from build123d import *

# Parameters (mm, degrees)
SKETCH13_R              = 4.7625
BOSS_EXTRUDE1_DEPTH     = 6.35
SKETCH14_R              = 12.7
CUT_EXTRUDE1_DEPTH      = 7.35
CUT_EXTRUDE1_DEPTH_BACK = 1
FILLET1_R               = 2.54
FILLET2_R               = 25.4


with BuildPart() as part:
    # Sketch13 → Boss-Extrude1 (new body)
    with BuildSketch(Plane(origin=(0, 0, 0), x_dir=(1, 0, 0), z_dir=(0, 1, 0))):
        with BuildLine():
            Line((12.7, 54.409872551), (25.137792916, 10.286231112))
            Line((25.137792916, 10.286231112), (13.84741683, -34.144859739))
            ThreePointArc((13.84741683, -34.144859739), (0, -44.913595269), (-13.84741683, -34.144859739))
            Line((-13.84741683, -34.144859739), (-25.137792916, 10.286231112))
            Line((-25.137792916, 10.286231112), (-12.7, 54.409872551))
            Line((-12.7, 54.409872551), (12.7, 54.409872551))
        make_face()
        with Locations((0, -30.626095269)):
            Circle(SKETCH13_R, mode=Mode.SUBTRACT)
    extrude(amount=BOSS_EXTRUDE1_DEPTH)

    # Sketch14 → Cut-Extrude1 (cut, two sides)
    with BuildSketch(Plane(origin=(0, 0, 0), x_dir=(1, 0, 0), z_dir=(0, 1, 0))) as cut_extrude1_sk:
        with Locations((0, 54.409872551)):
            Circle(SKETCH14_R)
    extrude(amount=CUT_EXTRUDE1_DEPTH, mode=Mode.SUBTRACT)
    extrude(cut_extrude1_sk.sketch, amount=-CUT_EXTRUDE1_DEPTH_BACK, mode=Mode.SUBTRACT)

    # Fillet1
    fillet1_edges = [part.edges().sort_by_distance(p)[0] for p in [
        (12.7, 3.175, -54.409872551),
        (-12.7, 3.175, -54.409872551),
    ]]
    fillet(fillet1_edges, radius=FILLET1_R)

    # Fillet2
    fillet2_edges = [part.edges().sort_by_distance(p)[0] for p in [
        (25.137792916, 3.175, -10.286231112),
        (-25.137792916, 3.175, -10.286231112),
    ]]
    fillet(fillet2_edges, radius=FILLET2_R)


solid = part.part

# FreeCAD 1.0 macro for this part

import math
import FreeCAD as App
import Part
import Sketcher
Q = App.Units.Quantity


def edges_at(feature, points):
    """Names of the edges that pass closest to the given points."""
    edges = feature.Shape.Edges
    near = lambda p: min(range(len(edges)), key=lambda i: edges[i].distToShape(Part.Vertex(*p))[0])
    return sorted({f"Edge{near(p) + 1}" for p in points})

doc = App.newDocument("Part")
body = doc.addObject("PartDesign::Body", "Body")

# Sketch on XZ plane
sketch1 = body.newObject("Sketcher::SketchObject", "Sketch")
sketch1.AttachmentSupport = (doc.getObject("XZ_Plane"), [""])
sketch1.MapMode = "FlatFace"
sketch1.addGeometry(Part.LineSegment(App.Vector(25.1, -10.3, 0), App.Vector(12.7, -54.4, 0)), False)
sketch1.addGeometry(Part.LineSegment(App.Vector(12.7, -54.4, 0), App.Vector(-12.7, -54.4, 0)), False)
sketch1.addGeometry(Part.LineSegment(App.Vector(-12.7, -54.4, 0), App.Vector(-25.1, -10.3, 0)), False)
sketch1.addGeometry(Part.LineSegment(App.Vector(-25.1, -10.3, 0), App.Vector(-13.8, 34.1, 0)), False)
sketch1.addGeometry(Part.ArcOfCircle(Part.Circle(App.Vector(0, 30.6, 0), App.Vector(0, 0, 1), 14.3), math.radians(14), math.radians(166)), False)
sketch1.addGeometry(Part.LineSegment(App.Vector(13.8, 34.1, 0), App.Vector(25.1, -10.3, 0)), False)
sketch1.addGeometry(Part.Circle(App.Vector(0, 30.6, 0), App.Vector(0, 0, 1), 4.8), False)
sketch1.addConstraint(Sketcher.Constraint("Coincident", 0, 2, 1, 1))
sketch1.addConstraint(Sketcher.Constraint("Coincident", 1, 2, 2, 1))
sketch1.addConstraint(Sketcher.Constraint("Coincident", 2, 2, 3, 1))
sketch1.addConstraint(Sketcher.Constraint("Tangent", 3, 2, 4, 2))
sketch1.addConstraint(Sketcher.Constraint("Tangent", 4, 1, 5, 1))
sketch1.addConstraint(Sketcher.Constraint("Coincident", 5, 2, 0, 1))
sketch1.addConstraint(Sketcher.Constraint("Horizontal", 1))
sketch1.addConstraint(Sketcher.Constraint("Coincident", 6, 3, 4, 3))
sketch1.addConstraint(Sketcher.Constraint("Symmetric", 3, 2, 4, 1, -2))
sketch1.addConstraint(Sketcher.Constraint("Horizontal", 2, 2, 5, 2))
sketch1.addConstraint(Sketcher.Constraint("Equal", 0, 2))
sketch1.addConstraint(Sketcher.Constraint("Equal", 2, 3))
sketch1.addConstraint(Sketcher.Constraint("DistanceX", 1, 2, 1, 1, Q("1 in")))
sketch1.addConstraint(Sketcher.Constraint("Diameter", 6, Q("0.375 in")))
sketch1.addConstraint(Sketcher.Constraint("Radius", 4, Q("0.5625 in")))
sketch1.addConstraint(Sketcher.Constraint("Distance", 0, Q("45.84315 mm")))
sketch1.addConstraint(Sketcher.Constraint("DistanceY", 2, 2, -1, 1, Q("10.286231 mm")))
sketch1.addConstraint(Sketcher.Constraint("DistanceY", -1, 1, 3, 2, Q("34.14486 mm")))
pad1 = body.newObject("PartDesign::Pad", "Pad")
pad1.Profile = sketch1
pad1.Length = Q("0.25 in")
pad1.Reversed = True

# Sketch on XZ plane
sketch2 = body.newObject("Sketcher::SketchObject", "Sketch001")
sketch2.AttachmentSupport = (doc.getObject("XZ_Plane"), [""])
sketch2.MapMode = "FlatFace"
sketch2.addGeometry(Part.Circle(App.Vector(0, -54, 0), App.Vector(0, 0, 1), 13), False)
sketch2.addConstraint(Sketcher.Constraint("PointOnObject", 0, 3, -2))
sketch2.addConstraint(Sketcher.Constraint("Diameter", 0, Q("1 in")))
sketch2.addConstraint(Sketcher.Constraint("DistanceY", 0, 3, -1, 1, Q("54.409873 mm")))
pocket1 = body.newObject("PartDesign::Pocket", "Pocket")
pocket1.Profile = sketch2
pocket1.Type = "ThroughAll"
pocket1.Midplane = True
doc.recompute()

fillet = body.newObject("PartDesign::Fillet", "Fillet")
fillet.Base = (pocket1, edges_at(pocket1, [(12.7, 3.175, -54.41), (-12.7, 3.175, -54.41)]))
fillet.Radius = Q("0.1 in")
doc.recompute()

fillet2 = body.newObject("PartDesign::Fillet", "Fillet001")
fillet2.Base = (fillet, edges_at(fillet, [(25.138, 3.175, -10.286), (-25.138, 3.175, -10.286)]))
fillet2.Radius = Q("1 in")

doc.recompute()
